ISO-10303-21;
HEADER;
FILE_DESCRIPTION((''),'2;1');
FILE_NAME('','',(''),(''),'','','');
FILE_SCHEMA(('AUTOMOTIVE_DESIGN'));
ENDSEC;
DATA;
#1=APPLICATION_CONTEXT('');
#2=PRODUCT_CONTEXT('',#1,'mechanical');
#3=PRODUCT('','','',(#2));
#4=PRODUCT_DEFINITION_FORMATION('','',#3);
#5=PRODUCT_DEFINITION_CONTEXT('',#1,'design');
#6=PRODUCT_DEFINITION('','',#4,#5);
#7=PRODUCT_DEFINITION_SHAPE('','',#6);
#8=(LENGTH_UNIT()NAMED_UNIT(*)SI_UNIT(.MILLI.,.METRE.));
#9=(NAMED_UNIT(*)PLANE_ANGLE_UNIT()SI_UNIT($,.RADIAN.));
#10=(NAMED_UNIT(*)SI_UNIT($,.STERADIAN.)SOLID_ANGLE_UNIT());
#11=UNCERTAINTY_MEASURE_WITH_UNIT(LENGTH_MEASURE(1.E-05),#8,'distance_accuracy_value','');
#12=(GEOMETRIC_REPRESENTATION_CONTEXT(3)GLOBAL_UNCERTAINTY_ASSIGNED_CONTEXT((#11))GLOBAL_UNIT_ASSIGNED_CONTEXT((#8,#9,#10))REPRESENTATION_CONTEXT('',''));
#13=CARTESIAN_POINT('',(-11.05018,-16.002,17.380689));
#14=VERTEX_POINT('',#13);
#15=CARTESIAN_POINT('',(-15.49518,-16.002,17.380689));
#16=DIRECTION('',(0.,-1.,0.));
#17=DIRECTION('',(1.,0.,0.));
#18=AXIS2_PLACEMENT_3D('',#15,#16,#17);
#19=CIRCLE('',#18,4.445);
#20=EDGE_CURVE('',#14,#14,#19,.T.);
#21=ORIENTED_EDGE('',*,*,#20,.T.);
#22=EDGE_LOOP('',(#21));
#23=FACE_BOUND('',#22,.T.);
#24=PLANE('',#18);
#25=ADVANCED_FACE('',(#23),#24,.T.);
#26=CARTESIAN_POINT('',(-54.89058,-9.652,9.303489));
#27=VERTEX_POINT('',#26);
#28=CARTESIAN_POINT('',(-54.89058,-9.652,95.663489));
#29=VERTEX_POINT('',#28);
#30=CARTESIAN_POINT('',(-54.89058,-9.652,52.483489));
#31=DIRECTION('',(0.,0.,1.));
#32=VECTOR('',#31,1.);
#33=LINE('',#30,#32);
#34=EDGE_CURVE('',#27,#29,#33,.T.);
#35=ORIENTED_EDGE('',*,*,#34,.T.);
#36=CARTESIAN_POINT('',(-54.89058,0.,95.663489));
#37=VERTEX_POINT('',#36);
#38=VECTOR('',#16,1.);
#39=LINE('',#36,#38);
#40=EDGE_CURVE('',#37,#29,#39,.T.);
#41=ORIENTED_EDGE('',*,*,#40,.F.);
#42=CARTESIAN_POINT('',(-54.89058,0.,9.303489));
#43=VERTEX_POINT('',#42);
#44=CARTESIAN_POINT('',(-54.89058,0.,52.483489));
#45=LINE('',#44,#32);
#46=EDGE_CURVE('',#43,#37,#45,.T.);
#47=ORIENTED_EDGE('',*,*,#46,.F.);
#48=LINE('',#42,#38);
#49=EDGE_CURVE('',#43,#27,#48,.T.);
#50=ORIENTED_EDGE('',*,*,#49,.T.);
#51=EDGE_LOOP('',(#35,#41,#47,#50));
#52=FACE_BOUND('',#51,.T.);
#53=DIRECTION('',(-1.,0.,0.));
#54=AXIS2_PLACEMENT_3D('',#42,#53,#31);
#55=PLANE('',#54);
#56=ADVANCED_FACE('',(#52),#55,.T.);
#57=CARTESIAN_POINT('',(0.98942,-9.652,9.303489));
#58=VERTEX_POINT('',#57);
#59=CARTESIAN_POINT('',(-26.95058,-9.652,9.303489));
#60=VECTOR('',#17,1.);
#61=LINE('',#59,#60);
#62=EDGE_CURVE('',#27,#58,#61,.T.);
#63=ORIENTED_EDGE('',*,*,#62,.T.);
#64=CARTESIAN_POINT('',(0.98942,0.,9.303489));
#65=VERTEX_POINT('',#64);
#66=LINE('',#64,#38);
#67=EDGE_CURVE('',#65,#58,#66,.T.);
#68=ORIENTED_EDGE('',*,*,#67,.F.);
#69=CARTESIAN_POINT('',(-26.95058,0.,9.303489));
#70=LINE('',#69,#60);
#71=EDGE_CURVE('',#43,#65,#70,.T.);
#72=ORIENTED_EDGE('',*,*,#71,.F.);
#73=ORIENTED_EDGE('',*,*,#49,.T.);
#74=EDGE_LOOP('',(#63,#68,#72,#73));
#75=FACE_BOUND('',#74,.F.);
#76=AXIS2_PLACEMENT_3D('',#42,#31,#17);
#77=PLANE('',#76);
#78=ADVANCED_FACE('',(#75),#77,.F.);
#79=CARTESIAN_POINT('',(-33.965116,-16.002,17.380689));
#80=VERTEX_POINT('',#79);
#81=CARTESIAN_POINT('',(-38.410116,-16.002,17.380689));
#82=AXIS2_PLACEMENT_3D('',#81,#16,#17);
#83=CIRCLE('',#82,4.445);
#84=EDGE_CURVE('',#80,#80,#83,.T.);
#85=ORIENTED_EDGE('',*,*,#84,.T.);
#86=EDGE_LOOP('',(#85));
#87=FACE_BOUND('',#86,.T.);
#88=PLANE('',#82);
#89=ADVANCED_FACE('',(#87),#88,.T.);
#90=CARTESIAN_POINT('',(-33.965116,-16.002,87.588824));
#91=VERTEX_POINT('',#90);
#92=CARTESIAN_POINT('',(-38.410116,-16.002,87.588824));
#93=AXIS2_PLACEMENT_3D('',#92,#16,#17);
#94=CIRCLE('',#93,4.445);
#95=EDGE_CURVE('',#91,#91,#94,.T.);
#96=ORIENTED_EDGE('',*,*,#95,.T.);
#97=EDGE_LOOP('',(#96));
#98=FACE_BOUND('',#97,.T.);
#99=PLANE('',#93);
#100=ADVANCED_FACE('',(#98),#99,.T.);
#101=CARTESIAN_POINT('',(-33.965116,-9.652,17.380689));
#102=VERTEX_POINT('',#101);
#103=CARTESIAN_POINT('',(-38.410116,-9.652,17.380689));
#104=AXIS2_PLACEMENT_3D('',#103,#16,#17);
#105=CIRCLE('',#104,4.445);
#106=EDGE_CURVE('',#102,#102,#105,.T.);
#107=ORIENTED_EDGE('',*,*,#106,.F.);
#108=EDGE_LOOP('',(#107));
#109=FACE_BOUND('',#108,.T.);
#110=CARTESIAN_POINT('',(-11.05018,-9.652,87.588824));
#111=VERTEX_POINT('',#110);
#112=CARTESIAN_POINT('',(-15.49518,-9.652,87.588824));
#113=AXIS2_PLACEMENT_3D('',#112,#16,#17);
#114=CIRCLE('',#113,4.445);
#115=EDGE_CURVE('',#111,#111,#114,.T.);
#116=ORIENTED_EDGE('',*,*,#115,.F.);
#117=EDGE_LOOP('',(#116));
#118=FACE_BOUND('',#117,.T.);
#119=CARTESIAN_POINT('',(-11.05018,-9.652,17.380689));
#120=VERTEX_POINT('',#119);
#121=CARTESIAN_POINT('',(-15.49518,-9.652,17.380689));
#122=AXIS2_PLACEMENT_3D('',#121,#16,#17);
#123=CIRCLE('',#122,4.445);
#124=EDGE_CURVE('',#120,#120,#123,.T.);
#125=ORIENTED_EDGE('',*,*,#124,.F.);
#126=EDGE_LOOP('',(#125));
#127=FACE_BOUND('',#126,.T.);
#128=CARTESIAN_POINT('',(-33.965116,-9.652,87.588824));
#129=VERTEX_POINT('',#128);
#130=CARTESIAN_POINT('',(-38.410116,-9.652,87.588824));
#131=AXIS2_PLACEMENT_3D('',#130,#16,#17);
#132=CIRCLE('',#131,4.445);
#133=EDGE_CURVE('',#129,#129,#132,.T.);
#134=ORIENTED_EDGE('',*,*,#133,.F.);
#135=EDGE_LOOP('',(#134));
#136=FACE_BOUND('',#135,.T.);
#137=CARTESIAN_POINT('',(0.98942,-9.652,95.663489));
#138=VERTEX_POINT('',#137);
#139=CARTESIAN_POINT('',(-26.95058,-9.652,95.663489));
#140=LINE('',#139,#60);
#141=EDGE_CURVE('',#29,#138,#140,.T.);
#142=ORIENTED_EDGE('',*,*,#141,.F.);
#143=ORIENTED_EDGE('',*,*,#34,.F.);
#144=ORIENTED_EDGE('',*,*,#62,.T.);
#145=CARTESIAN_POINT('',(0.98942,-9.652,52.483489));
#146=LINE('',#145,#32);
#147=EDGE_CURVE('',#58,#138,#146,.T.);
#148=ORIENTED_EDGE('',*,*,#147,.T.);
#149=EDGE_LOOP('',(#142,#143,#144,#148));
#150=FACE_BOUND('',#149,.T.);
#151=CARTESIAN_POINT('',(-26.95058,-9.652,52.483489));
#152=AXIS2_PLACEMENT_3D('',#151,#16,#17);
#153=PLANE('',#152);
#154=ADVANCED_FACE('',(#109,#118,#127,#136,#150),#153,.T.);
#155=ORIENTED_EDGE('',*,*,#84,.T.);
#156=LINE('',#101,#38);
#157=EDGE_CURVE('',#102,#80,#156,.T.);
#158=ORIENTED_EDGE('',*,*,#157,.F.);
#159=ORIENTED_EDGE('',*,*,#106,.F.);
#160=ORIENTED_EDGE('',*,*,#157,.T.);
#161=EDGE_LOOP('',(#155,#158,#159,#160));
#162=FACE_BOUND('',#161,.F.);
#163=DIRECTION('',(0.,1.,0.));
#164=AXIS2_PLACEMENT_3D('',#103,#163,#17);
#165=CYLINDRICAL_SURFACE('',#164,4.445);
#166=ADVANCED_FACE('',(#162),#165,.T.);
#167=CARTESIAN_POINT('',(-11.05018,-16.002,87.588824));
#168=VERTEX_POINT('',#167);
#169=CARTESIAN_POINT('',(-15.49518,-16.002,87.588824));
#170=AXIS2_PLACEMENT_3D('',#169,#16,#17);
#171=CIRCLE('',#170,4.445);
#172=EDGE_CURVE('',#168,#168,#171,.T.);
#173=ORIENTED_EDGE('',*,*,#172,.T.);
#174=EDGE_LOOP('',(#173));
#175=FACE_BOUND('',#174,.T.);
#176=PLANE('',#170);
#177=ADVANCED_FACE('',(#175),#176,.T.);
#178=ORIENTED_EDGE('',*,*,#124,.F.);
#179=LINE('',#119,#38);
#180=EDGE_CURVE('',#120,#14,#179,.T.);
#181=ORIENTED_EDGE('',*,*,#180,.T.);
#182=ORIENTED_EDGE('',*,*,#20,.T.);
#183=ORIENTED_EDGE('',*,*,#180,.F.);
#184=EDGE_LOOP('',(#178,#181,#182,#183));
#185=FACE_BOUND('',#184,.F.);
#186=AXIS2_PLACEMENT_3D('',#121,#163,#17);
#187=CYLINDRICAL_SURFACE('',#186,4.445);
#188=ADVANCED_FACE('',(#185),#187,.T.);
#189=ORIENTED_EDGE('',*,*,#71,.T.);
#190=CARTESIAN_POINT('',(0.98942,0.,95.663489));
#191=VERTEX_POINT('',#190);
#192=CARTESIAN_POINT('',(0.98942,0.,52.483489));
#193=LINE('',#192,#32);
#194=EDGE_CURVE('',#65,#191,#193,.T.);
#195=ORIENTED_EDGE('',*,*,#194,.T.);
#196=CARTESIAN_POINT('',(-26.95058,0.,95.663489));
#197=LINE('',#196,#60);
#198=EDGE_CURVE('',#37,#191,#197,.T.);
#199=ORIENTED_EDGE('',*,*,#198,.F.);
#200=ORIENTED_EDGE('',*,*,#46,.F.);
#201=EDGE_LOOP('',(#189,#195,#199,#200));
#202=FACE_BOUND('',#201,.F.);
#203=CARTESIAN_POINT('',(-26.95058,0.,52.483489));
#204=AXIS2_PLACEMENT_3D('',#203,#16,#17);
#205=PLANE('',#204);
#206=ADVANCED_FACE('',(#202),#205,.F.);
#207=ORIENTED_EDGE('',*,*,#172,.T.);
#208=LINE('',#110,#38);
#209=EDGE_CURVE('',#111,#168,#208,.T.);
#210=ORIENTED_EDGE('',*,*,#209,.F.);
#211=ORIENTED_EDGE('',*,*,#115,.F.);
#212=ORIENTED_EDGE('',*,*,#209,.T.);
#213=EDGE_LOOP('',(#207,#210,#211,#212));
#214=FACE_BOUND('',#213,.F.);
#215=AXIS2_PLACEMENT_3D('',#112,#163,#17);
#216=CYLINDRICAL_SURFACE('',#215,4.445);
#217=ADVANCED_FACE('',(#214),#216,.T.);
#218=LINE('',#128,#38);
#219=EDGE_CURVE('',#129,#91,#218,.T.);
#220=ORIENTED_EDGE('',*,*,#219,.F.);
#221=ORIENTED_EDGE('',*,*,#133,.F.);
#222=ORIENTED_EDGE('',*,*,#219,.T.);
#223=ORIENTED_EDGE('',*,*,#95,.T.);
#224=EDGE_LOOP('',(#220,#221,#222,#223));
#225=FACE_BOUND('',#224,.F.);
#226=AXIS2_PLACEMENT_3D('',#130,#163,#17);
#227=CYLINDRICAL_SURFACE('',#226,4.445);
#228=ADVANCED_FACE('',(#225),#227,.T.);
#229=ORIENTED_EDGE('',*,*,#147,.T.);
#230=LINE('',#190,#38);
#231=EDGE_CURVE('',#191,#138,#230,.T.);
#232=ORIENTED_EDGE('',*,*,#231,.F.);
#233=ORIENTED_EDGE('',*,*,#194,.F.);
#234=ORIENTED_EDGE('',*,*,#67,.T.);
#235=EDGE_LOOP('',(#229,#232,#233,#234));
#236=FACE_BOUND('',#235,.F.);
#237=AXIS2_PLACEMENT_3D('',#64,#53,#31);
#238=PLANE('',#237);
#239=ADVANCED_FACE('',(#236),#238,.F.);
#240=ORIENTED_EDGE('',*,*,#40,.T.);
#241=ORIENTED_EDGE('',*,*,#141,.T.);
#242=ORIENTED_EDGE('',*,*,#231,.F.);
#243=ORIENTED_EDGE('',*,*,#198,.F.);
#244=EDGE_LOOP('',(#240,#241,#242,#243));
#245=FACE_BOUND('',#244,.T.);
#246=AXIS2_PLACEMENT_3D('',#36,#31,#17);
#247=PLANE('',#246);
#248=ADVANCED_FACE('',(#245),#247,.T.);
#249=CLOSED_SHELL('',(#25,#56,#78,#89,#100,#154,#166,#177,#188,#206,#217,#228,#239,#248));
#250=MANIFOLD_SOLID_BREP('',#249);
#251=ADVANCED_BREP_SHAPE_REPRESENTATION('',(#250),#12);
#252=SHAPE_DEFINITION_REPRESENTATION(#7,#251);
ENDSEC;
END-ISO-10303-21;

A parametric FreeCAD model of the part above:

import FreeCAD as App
import Part
import Sketcher
from FreeCAD import Vector
Q = App.Units.Quantity


def add_polygon(sketch, points):
    """Adds a closed chain of lines whose ends are joined by coincident constraints."""
    first, n = sketch.GeometryCount, len(points)
    for a, b in zip(points, points[1:] + points[:1]):
        sketch.addGeometry(Part.LineSegment(App.Vector(*a, 0), App.Vector(*b, 0)), False)
    for i in range(n):
        sketch.addConstraint(Sketcher.Constraint("Coincident", first + i, 2, first + (i + 1) % n, 1))

doc = App.newDocument("Part")
body = doc.addObject("PartDesign::Body", "Body")

sketch1 = doc.addObject("Sketcher::SketchObject", "Sketch")
body.addObject(sketch1)
sketch1.AttachmentSupport = (doc.XZ_Plane, [""])
sketch1.MapMode = "FlatFace"
add_polygon(sketch1, [(-55, 96), (-55, 9), (1, 9), (1, 96)])
sketch1.addConstraint([
    Sketcher.Constraint("Vertical", 0),
    Sketcher.Constraint("Horizontal", 1),
    Sketcher.Constraint("Vertical", 2),
    Sketcher.Constraint("Horizontal", 3),
    Sketcher.Constraint("DistanceX", 1, 1, 1, 2, Q("2.2 in")),
    Sketcher.Constraint("DistanceY", 0, 2, 0, 1, Q("3.4 in")),
    Sketcher.Constraint("DistanceX", 0, 2, -1, 1, 54.89058),
    Sketcher.Constraint("DistanceY", -1, 1, 0, 2, 9.303489),
])
pad1 = doc.addObject("PartDesign::Pad", "Pad")
body.addObject(pad1)
pad1.Profile = sketch1
pad1.Length = Q("0.38 in")

sketch2 = doc.addObject("Sketcher::SketchObject", "Sketch001")
body.addObject(sketch2)
sketch2.AttachmentSupport = (doc.XZ_Plane, [""])
sketch2.MapMode = "FlatFace"
sketch2.AttachmentOffset = App.Placement(Vector(0, 0, 0.38 * 25.4), App.Rotation())
sketch2.addGeometry([
    Part.Circle(Vector(-38.4, 87.6, 0), Vector(0, 0, 1), 4.4),
    Part.Circle(Vector(-15.5, 87.6, 0), Vector(0, 0, 1), 4.4),
    Part.Circle(Vector(-38.4, 17.4, 0), Vector(0, 0, 1), 4.4),
    Part.Circle(Vector(-15.5, 17.4, 0), Vector(0, 0, 1), 4.4),
], False)
sketch2.addConstraint([
    Sketcher.Constraint("Equal", 0, 1),
    Sketcher.Constraint("Equal", 1, 2),
    Sketcher.Constraint("Equal", 2, 3),
    Sketcher.Constraint("Horizontal", 0, 3, 1, 3),
    Sketcher.Constraint("Horizontal", 2, 3, 3, 3),
    Sketcher.Constraint("Vertical", 0, 3, 2, 3),
    Sketcher.Constraint("Vertical", 1, 3, 3, 3),
    Sketcher.Constraint("Diameter", 0, Q("0.35 in")),
    Sketcher.Constraint("DistanceY", 2, 3, 0, 3, Q("2.7640998 in")),
    Sketcher.Constraint("DistanceX", 1, 3, -1, 1, 15.49518),
    Sketcher.Constraint("DistanceY", -1, 1, 2, 3, 17.380689),
    Sketcher.Constraint("DistanceX", 0, 3, -1, 1, 38.410116),
])
pad2 = doc.addObject("PartDesign::Pad", "Pad001")
body.addObject(pad2)
pad2.Profile = sketch2
pad2.Length = Q("0.25 in")

doc.recompute()
